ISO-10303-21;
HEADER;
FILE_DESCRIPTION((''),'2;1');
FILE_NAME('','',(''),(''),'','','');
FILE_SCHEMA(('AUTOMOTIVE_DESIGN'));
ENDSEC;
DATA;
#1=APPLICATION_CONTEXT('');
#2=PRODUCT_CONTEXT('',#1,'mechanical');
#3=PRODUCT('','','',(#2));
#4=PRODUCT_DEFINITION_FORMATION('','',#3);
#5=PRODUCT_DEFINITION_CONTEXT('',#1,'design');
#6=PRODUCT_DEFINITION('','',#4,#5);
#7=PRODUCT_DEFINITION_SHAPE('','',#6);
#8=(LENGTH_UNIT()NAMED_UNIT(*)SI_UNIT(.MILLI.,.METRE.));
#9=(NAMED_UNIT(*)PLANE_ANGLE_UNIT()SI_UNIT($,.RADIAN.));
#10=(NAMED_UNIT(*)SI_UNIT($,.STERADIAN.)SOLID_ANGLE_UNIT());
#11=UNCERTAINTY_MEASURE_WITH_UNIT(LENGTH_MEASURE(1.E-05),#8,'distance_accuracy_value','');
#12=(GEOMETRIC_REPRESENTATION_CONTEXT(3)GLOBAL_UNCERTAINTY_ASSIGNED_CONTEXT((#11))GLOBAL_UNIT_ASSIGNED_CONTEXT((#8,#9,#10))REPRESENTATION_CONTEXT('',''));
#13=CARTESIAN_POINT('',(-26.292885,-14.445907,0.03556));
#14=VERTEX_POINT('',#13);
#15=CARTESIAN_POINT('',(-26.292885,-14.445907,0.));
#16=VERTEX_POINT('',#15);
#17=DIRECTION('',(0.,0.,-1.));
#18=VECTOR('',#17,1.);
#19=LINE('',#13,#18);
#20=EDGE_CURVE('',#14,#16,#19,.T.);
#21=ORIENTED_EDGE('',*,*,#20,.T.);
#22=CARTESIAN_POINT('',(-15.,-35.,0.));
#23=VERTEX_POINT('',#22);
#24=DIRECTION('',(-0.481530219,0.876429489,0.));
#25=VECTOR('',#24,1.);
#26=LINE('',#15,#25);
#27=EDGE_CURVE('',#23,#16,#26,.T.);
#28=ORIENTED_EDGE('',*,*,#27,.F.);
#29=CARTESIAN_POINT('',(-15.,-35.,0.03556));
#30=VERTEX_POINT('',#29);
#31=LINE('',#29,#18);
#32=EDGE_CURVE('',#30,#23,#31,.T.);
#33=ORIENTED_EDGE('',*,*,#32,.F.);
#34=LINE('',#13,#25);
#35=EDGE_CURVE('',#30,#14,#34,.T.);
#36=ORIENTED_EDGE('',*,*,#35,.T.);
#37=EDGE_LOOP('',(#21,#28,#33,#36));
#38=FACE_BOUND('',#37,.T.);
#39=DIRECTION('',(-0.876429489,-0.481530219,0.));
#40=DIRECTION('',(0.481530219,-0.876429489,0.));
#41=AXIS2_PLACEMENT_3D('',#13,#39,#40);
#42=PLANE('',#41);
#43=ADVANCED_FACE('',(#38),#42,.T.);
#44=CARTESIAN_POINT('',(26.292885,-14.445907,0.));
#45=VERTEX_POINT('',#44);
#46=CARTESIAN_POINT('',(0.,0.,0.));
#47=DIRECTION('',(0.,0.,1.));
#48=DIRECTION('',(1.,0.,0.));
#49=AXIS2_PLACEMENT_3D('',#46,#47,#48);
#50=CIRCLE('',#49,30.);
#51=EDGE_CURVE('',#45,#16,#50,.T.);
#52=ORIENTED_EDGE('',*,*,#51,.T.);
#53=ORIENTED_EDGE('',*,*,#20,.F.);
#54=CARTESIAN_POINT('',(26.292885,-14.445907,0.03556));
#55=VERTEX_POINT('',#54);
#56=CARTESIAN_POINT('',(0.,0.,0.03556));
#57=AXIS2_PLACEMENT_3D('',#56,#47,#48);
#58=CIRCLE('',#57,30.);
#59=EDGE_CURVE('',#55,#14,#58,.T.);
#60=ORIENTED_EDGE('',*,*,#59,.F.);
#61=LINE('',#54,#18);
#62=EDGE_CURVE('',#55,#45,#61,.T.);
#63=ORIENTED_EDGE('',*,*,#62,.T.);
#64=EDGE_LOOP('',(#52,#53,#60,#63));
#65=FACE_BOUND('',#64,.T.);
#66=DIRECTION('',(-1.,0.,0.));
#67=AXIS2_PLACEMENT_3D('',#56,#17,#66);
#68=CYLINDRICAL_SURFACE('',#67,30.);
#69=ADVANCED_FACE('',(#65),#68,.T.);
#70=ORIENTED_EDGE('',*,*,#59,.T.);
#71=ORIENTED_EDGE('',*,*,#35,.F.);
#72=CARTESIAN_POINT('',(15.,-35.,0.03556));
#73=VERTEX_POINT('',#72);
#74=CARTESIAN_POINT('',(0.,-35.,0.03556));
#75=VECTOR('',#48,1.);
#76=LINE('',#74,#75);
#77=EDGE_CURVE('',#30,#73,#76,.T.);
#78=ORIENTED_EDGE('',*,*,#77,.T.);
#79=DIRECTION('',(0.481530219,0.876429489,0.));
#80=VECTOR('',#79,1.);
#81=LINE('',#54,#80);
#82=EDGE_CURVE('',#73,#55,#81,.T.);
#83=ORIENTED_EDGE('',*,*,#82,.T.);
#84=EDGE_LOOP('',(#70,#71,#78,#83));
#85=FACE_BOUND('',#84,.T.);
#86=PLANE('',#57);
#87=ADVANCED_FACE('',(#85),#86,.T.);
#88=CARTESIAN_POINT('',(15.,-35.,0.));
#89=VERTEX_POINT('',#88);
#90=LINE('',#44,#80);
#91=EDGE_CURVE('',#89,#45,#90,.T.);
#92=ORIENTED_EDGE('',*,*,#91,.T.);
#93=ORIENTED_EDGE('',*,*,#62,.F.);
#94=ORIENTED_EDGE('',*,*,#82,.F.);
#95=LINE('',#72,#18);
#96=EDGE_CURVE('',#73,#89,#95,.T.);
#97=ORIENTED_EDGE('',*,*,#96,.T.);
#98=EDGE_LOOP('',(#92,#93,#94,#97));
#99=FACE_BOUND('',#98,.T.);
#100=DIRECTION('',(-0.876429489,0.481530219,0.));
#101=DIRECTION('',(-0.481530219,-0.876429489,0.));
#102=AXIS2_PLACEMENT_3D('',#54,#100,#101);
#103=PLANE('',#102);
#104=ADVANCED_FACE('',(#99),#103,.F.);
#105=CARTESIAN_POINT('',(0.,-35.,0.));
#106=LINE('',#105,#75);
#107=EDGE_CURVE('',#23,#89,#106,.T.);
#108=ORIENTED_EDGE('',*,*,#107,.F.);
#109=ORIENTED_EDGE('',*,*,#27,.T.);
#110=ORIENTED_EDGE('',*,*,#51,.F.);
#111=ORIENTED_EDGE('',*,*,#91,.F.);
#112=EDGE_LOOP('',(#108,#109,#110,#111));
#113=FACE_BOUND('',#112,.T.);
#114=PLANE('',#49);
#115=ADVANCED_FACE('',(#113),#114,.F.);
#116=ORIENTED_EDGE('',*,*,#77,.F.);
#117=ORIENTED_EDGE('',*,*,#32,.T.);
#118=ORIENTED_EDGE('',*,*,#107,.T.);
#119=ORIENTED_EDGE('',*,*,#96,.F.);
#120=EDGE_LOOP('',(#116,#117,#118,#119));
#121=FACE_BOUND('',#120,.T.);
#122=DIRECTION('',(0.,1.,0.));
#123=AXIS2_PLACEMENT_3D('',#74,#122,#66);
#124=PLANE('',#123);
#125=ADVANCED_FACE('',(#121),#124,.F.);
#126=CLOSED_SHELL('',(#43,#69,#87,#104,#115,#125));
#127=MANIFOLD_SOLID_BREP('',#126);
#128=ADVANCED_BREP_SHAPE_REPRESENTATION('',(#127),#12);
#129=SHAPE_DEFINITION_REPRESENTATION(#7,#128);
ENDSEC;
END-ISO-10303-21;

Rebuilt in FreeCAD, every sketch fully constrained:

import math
import FreeCAD as App
import Part
import Sketcher

V = App.Vector

doc = App.newDocument("Part")
body = doc.addObject("PartDesign::Body", "Body")

sketch1 = doc.addObject("Sketcher::SketchObject", "Sketch")
body.addObject(sketch1)
sketch1.AttachmentSupport = (doc.XY_Plane, [""])
sketch1.MapMode = "FlatFace"
sketch1.addGeometry(Part.LineSegment(V(-15, -35, 0), V(15, -35, 0)), False)
sketch1.addGeometry(Part.LineSegment(V(15, -35, 0), V(26.292885, -14.445907, 0)), False)
sketch1.addGeometry(Part.ArcOfCircle(Part.Circle(V(0, 0, 0), V(0, 0, 1), 30), math.radians(-28.785391), math.radians(208.785391)), False)
sketch1.addGeometry(Part.LineSegment(V(-26.292885, -14.445907, 0), V(-15, -35, 0)), False)
sketch1.addConstraint(Sketcher.Constraint("Coincident", 0, 2, 1, 1))
sketch1.addConstraint(Sketcher.Constraint("Tangent", 1, 2, 2, 1))
sketch1.addConstraint(Sketcher.Constraint("Tangent", 2, 2, 3, 1))
sketch1.addConstraint(Sketcher.Constraint("Coincident", 3, 2, 0, 1))
sketch1.addConstraint(Sketcher.Constraint("Horizontal", 0))
sketch1.addConstraint(Sketcher.Constraint("Coincident", 2, 3, -1, 1))
sketch1.addConstraint(Sketcher.Constraint("Horizontal", 1, 2, 2, 2))
sketch1.addConstraint(Sketcher.Constraint("Radius", 2, 30.0))
sketch1.addConstraint(Sketcher.Constraint("DistanceX", 0, 1, 0, 2, 30.0))
sketch1.addConstraint(Sketcher.Constraint("DistanceY", 0, 2, -1, 1, 35.0))
pad1 = doc.addObject("PartDesign::Pad", "Pad")
body.addObject(pad1)
pad1.Profile = sketch1
pad1.Length = 0.03556

doc.recompute()
